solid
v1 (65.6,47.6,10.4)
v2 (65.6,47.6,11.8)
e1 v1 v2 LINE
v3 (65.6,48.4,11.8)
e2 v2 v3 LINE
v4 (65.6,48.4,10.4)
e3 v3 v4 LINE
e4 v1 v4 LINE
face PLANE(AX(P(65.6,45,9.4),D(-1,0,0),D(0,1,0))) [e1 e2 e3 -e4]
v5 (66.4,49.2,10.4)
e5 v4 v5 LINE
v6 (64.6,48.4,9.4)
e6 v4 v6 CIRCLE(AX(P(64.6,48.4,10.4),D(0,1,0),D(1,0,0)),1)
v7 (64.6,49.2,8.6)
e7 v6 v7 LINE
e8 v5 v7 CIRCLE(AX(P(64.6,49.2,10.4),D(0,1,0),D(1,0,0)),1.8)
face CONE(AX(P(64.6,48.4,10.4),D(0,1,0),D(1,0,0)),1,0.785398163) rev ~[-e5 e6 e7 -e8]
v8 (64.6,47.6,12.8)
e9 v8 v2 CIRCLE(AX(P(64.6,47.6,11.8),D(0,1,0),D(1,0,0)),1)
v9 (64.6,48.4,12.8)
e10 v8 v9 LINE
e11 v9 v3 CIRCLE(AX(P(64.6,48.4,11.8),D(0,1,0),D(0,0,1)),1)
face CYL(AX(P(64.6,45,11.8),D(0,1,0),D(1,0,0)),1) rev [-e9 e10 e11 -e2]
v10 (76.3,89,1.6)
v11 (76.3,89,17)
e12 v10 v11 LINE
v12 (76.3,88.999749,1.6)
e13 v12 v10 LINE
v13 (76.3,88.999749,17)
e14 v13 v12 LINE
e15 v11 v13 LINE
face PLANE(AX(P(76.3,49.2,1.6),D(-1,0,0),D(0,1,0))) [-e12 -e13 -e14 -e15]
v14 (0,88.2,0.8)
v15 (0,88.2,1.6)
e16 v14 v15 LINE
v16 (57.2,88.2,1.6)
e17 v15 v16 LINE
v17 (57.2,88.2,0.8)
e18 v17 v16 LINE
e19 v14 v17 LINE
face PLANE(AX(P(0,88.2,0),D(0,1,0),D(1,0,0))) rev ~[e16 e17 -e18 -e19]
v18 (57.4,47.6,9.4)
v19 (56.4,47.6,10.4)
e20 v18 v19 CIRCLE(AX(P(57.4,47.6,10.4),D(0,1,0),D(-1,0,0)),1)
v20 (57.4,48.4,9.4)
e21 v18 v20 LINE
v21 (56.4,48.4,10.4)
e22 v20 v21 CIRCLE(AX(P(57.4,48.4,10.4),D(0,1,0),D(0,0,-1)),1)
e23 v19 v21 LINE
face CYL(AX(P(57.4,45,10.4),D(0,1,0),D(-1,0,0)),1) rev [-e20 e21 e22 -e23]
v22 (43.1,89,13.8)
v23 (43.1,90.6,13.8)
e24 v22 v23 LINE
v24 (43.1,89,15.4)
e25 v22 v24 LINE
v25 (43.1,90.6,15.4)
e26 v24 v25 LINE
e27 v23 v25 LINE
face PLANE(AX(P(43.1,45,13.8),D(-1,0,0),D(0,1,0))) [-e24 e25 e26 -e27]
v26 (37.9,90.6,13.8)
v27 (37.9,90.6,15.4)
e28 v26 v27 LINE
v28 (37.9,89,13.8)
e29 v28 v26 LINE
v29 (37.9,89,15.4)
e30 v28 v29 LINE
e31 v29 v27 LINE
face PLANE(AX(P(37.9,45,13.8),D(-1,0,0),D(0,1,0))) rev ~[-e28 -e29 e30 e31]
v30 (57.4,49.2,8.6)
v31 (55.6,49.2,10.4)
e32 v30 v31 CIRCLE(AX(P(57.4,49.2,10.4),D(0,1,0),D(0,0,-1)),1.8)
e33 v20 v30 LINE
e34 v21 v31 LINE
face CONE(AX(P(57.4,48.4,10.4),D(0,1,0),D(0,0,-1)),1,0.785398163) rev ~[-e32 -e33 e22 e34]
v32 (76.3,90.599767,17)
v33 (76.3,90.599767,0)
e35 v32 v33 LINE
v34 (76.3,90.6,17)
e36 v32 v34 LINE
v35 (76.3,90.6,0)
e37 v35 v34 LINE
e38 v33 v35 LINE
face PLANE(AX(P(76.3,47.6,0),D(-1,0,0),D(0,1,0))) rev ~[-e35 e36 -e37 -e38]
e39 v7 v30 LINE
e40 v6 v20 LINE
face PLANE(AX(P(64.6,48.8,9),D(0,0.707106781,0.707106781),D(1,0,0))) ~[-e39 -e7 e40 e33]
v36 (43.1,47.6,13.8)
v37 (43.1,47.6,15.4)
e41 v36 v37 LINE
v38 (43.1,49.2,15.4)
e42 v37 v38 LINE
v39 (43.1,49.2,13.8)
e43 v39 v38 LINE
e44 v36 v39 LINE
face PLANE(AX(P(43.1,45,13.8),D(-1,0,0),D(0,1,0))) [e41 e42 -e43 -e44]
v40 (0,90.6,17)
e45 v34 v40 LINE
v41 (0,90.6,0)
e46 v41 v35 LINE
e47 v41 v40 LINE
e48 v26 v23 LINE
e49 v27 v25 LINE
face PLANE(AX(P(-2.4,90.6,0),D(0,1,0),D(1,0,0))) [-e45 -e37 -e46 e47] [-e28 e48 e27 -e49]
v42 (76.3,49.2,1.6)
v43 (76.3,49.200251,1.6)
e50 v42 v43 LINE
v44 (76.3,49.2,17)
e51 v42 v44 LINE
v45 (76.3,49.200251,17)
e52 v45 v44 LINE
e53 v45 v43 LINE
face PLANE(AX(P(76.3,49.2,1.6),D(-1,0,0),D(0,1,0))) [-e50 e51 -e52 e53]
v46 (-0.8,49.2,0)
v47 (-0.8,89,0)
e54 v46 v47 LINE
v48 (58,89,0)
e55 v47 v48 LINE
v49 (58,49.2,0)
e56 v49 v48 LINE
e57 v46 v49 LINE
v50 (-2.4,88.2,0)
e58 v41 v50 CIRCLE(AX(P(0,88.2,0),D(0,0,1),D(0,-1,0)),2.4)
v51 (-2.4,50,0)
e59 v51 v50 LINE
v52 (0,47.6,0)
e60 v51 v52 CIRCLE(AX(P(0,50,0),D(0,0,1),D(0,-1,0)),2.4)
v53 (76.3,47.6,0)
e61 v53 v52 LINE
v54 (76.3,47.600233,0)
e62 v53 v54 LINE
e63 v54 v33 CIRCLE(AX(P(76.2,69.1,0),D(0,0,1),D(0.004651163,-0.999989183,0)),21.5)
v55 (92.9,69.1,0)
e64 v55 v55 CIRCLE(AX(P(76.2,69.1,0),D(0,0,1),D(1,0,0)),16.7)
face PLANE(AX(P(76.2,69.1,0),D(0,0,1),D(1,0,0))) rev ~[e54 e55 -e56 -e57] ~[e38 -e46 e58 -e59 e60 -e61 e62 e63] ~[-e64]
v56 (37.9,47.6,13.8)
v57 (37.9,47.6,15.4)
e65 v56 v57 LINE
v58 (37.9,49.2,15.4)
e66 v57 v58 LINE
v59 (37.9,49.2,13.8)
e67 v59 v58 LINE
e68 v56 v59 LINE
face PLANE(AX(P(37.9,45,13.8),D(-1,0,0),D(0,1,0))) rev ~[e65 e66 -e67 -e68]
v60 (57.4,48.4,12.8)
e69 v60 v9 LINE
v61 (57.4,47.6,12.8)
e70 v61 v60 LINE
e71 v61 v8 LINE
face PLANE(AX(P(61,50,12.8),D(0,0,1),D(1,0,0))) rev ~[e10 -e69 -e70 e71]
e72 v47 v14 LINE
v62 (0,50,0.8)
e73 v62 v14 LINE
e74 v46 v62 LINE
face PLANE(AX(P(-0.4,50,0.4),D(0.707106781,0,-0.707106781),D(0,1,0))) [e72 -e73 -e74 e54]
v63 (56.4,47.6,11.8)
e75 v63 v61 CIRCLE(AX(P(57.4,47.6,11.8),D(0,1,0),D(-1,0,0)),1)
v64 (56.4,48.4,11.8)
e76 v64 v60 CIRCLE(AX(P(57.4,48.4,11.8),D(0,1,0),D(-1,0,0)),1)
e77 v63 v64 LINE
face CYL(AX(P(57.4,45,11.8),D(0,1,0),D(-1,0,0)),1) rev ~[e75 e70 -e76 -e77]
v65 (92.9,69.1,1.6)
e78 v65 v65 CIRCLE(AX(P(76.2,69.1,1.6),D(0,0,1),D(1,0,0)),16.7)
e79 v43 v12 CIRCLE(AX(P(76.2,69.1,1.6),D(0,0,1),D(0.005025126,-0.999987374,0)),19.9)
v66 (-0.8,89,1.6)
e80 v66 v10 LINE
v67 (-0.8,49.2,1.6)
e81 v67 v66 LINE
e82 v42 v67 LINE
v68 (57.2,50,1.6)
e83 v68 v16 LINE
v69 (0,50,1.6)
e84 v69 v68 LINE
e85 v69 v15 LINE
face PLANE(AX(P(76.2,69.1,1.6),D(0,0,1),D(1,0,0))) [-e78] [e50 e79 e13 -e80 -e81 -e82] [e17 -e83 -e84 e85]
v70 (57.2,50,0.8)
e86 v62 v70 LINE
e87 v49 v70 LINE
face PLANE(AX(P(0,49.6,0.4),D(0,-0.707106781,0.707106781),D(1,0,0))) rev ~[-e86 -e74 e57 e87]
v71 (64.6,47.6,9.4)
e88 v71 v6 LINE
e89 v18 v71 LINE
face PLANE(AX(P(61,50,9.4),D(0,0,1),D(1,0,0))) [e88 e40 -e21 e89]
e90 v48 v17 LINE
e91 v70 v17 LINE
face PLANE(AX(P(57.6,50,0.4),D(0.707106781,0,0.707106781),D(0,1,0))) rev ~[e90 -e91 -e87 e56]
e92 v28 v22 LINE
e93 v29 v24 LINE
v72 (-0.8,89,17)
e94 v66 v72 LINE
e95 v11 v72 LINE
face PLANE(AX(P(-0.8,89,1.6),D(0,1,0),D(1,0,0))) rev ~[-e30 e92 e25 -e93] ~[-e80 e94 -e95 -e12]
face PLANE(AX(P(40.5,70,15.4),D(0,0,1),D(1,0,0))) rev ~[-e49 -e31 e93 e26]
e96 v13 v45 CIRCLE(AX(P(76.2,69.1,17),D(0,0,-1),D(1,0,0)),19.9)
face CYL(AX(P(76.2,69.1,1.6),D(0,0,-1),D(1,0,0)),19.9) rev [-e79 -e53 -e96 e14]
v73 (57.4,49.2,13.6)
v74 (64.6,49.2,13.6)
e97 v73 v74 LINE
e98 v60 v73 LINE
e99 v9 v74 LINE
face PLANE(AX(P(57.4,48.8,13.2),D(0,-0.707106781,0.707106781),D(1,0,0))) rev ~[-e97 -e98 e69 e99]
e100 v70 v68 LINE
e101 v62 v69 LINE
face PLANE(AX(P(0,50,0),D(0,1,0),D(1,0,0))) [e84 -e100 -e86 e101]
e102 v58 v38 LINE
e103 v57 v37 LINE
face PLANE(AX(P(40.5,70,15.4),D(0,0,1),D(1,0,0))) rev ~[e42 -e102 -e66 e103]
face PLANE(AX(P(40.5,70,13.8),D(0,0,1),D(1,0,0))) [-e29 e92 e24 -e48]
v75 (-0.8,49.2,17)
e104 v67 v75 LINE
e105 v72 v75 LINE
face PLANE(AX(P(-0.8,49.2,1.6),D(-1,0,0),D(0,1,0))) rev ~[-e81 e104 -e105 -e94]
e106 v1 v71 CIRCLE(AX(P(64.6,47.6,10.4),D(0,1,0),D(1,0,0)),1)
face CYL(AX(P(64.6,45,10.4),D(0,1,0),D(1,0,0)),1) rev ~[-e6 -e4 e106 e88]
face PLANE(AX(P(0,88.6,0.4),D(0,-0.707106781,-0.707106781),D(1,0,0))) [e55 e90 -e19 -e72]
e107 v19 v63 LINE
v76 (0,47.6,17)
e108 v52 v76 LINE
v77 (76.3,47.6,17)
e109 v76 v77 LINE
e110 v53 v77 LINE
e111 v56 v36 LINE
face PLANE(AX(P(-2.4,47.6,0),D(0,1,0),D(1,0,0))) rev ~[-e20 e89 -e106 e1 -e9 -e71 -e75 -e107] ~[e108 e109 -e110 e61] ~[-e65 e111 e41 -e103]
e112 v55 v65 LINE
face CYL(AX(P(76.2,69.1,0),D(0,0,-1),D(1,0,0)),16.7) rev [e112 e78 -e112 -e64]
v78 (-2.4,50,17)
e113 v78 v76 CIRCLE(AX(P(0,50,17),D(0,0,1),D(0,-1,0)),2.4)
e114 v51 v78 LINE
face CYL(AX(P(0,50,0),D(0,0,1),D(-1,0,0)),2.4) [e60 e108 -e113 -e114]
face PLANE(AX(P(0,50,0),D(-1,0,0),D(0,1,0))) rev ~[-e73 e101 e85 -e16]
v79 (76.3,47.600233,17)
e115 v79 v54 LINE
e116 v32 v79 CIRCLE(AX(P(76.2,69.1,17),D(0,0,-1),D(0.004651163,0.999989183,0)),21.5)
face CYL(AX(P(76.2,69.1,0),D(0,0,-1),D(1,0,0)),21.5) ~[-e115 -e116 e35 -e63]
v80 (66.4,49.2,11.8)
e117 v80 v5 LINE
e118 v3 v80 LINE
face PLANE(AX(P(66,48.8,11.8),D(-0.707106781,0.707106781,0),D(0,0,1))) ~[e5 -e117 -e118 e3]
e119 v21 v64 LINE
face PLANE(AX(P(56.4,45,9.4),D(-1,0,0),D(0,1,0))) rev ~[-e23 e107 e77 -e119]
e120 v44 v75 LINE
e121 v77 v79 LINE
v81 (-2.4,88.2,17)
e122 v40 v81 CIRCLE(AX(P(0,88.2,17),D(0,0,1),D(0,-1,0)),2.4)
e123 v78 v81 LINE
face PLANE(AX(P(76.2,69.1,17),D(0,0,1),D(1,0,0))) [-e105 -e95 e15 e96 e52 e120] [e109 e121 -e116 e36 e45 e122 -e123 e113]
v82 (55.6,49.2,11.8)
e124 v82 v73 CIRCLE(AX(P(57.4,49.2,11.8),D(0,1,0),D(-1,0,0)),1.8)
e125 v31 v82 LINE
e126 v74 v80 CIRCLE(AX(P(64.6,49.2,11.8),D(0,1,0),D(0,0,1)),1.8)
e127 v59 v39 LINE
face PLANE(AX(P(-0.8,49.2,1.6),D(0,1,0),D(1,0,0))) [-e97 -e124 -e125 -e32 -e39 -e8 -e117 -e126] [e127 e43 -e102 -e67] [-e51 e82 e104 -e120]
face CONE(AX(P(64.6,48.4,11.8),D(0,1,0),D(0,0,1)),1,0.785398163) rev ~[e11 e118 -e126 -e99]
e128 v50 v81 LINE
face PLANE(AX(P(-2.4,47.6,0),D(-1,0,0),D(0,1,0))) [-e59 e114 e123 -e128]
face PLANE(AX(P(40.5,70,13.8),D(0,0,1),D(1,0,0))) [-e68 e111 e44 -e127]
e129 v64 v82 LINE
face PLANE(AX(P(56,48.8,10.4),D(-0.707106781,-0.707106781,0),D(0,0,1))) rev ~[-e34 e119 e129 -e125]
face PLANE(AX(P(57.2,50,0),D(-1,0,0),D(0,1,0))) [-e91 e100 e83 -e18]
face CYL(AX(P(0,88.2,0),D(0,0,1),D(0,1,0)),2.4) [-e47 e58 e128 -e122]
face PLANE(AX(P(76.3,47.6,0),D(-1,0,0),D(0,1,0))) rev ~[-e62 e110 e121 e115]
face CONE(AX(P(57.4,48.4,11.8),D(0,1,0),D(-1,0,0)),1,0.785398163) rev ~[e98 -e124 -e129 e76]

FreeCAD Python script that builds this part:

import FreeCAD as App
import Part
import Sketcher
Q = App.Units.Quantity


def edges_at(feature, points):
    """Names of the edges that pass closest to the given points."""
    edges = feature.Shape.Edges
    near = lambda p: min(range(len(edges)), key=lambda i: edges[i].distToShape(Part.Vertex(*p))[0])
    return sorted({f"Edge{near(p) + 1}" for p in points})

doc = App.newDocument("Part")
body = doc.addObject("PartDesign::Body", "Body")

# Sketch on XY plane
sketch1 = body.newObject("Sketcher::SketchObject", "Sketch")
sketch1.AttachmentSupport = (doc.getObject("XY_Plane"), [""])
sketch1.MapMode = "FlatFace"
sketch1.AttachmentOffset = App.Placement(App.Vector(0, 0, 9.4), App.Rotation())
sketch1.addGeometry(Part.LineSegment(App.Vector(56, 55, 0), App.Vector(56, 45, 0)), False)
sketch1.addGeometry(Part.LineSegment(App.Vector(56, 45, 0), App.Vector(66, 45, 0)), False)
sketch1.addGeometry(Part.LineSegment(App.Vector(66, 45, 0), App.Vector(66, 55, 0)), False)
sketch1.addGeometry(Part.LineSegment(App.Vector(66, 55, 0), App.Vector(56, 55, 0)), False)
sketch1.addConstraint(Sketcher.Constraint("Coincident", 0, 2, 1, 1))
sketch1.addConstraint(Sketcher.Constraint("Coincident", 1, 2, 2, 1))
sketch1.addConstraint(Sketcher.Constraint("Coincident", 2, 2, 3, 1))
sketch1.addConstraint(Sketcher.Constraint("Coincident", 3, 2, 0, 1))
sketch1.addConstraint(Sketcher.Constraint("Vertical", 0))
sketch1.addConstraint(Sketcher.Constraint("Horizontal", 1))
sketch1.addConstraint(Sketcher.Constraint("Vertical", 2))
sketch1.addConstraint(Sketcher.Constraint("Horizontal", 3))
sketch1.addConstraint(Sketcher.Constraint("DistanceY", 0, 2, 0, 1, Q("10 mm")))
sketch1.addConstraint(Sketcher.Constraint("DistanceX", 1, 1, 1, 2, Q("9.2 mm")))
sketch1.addConstraint(Sketcher.Constraint("DistanceY", -1, 1, 0, 2, Q("45 mm")))
sketch1.addConstraint(Sketcher.Constraint("DistanceX", -1, 1, 0, 2, Q("56.4 mm")))
pad1 = body.newObject("PartDesign::Pad", "Pad")
pad1.Profile = sketch1
pad1.Length = 3.4
doc.recompute()

fillet = body.newObject("PartDesign::Fillet", "Fillet")
fillet.Base = (pad1, edges_at(pad1, [
    (56.4, 50, 12.8),
    (56.4, 50, 9.4),
    (65.6, 50, 12.8),
    (65.6, 50, 9.4),
]))
fillet.Radius = 1
body2 = doc.addObject("PartDesign::Body", "Body001")

# Sketch on XY plane
sketch2 = body2.newObject("Sketcher::SketchObject", "Sketch001")
sketch2.AttachmentSupport = (doc.getObject("XY_Plane001"), [""])
sketch2.MapMode = "FlatFace"
sketch2.AttachmentOffset = App.Placement(App.Vector(0, 0, 13.8), App.Rotation())
sketch2.addGeometry(Part.LineSegment(App.Vector(38, 95, 0), App.Vector(38, 45, 0)), False)
sketch2.addGeometry(Part.LineSegment(App.Vector(38, 45, 0), App.Vector(43, 45, 0)), False)
sketch2.addGeometry(Part.LineSegment(App.Vector(43, 45, 0), App.Vector(43, 95, 0)), False)
sketch2.addGeometry(Part.LineSegment(App.Vector(43, 95, 0), App.Vector(38, 95, 0)), False)
sketch2.addConstraint(Sketcher.Constraint("Coincident", 0, 2, 1, 1))
sketch2.addConstraint(Sketcher.Constraint("Coincident", 1, 2, 2, 1))
sketch2.addConstraint(Sketcher.Constraint("Coincident", 2, 2, 3, 1))
sketch2.addConstraint(Sketcher.Constraint("Coincident", 3, 2, 0, 1))
sketch2.addConstraint(Sketcher.Constraint("Vertical", 0))
sketch2.addConstraint(Sketcher.Constraint("Horizontal", 1))
sketch2.addConstraint(Sketcher.Constraint("Vertical", 2))
sketch2.addConstraint(Sketcher.Constraint("Horizontal", 3))
sketch2.addConstraint(Sketcher.Constraint("DistanceY", 0, 2, 0, 1, Q("50 mm")))
sketch2.addConstraint(Sketcher.Constraint("DistanceX", 1, 1, 1, 2, Q("5.2 mm")))
sketch2.addConstraint(Sketcher.Constraint("DistanceY", -1, 1, 0, 2, Q("45 mm")))
sketch2.addConstraint(Sketcher.Constraint("DistanceX", -1, 1, 0, 2, Q("37.9 mm")))
pad2 = body2.newObject("PartDesign::Pad", "Pad001")
pad2.Profile = sketch2
pad2.Length = 1.6
body3 = doc.addObject("PartDesign::Body", "Body002")

# Sketch on XY plane
sketch3 = body3.newObject("Sketcher::SketchObject", "Sketch002")
sketch3.AttachmentSupport = (doc.getObject("XY_Plane002"), [""])
sketch3.MapMode = "FlatFace"
sketch3.addGeometry(Part.LineSegment(App.Vector(0, 88, 0), App.Vector(0, 50, 0)), False)
sketch3.addGeometry(Part.LineSegment(App.Vector(0, 50, 0), App.Vector(57, 50, 0)), False)
sketch3.addGeometry(Part.LineSegment(App.Vector(57, 50, 0), App.Vector(57, 88, 0)), False)
sketch3.addGeometry(Part.LineSegment(App.Vector(57, 88, 0), App.Vector(0, 88, 0)), False)
sketch3.addConstraint(Sketcher.Constraint("Coincident", 0, 2, 1, 1))
sketch3.addConstraint(Sketcher.Constraint("Coincident", 1, 2, 2, 1))
sketch3.addConstraint(Sketcher.Constraint("Coincident", 2, 2, 3, 1))
sketch3.addConstraint(Sketcher.Constraint("Coincident", 3, 2, 0, 1))
sketch3.addConstraint(Sketcher.Constraint("Vertical", 0))
sketch3.addConstraint(Sketcher.Constraint("Horizontal", 1))
sketch3.addConstraint(Sketcher.Constraint("Vertical", 2))
sketch3.addConstraint(Sketcher.Constraint("Horizontal", 3))
sketch3.addConstraint(Sketcher.Constraint("PointOnObject", 0, 2, -2))
sketch3.addConstraint(Sketcher.Constraint("DistanceX", 1, 1, 1, 2, Q("57.2 mm")))
sketch3.addConstraint(Sketcher.Constraint("DistanceY", 0, 2, 0, 1, Q("38.2 mm")))
sketch3.addConstraint(Sketcher.Constraint("DistanceY", -1, 1, 0, 2, Q("50 mm")))
pad3 = body3.newObject("PartDesign::Pad", "Pad002")
pad3.Profile = sketch3
pad3.Length = 1.6
body4 = doc.addObject("PartDesign::Body", "Body003")

# Sketch on XY plane
sketch4 = body4.newObject("Sketcher::SketchObject", "Sketch003")
sketch4.AttachmentSupport = (doc.getObject("XY_Plane003"), [""])
sketch4.MapMode = "FlatFace"
sketch4.addGeometry(Part.Circle(App.Vector(76, 69, 0), App.Vector(0, 0, 1), 17), False)
sketch4.addConstraint(Sketcher.Constraint("Diameter", 0, Q("33.4 mm")))
sketch4.addConstraint(Sketcher.Constraint("DistanceX", -1, 1, 0, 3, Q("76.2 mm")))
sketch4.addConstraint(Sketcher.Constraint("DistanceY", -1, 1, 0, 3, Q("69.1 mm")))
pad4 = body4.newObject("PartDesign::Pad", "Pad003")
pad4.Profile = sketch4
pad4.Length = 1.6
body5 = doc.addObject("PartDesign::Body", "Body004")

# Sketch on XY plane
sketch5 = body5.newObject("Sketcher::SketchObject", "Sketch004")
sketch5.AttachmentSupport = (doc.getObject("XY_Plane004"), [""])
sketch5.MapMode = "FlatFace"
sketch5.AttachmentOffset = App.Placement(App.Vector(0, 0, 1.6), App.Rotation())
sketch5.addGeometry(Part.Circle(App.Vector(76, 69, 0), App.Vector(0, 0, 1), 20), False)
sketch5.addConstraint(Sketcher.Constraint("Diameter", 0, Q("39.8 mm")))
sketch5.addConstraint(Sketcher.Constraint("DistanceX", -1, 1, 0, 3, Q("76.2 mm")))
sketch5.addConstraint(Sketcher.Constraint("DistanceY", -1, 1, 0, 3, Q("69.1 mm")))
pad5 = body5.newObject("PartDesign::Pad", "Pad004")
pad5.Profile = sketch5
pad5.Length = 17
body6 = doc.addObject("PartDesign::Body", "Body005")

# Sketch on XY plane
sketch6 = body6.newObject("Sketcher::SketchObject", "Sketch005")
sketch6.AttachmentSupport = (doc.getObject("XY_Plane005"), [""])
sketch6.MapMode = "FlatFace"
sketch6.AttachmentOffset = App.Placement(App.Vector(0, 0, 1.6), App.Rotation())
sketch6.addGeometry(Part.LineSegment(App.Vector(-1, 89, 0), App.Vector(-1, 49, 0)), False)
sketch6.addGeometry(Part.LineSegment(App.Vector(-1, 49, 0), App.Vector(76, 49, 0)), False)
sketch6.addGeometry(Part.LineSegment(App.Vector(76, 49, 0), App.Vector(76, 89, 0)), False)
sketch6.addGeometry(Part.LineSegment(App.Vector(76, 89, 0), App.Vector(-1, 89, 0)), False)
sketch6.addConstraint(Sketcher.Constraint("Coincident", 0, 2, 1, 1))
sketch6.addConstraint(Sketcher.Constraint("Coincident", 1, 2, 2, 1))
sketch6.addConstraint(Sketcher.Constraint("Coincident", 2, 2, 3, 1))
sketch6.addConstraint(Sketcher.Constraint("Coincident", 3, 2, 0, 1))
sketch6.addConstraint(Sketcher.Constraint("Vertical", 0))
sketch6.addConstraint(Sketcher.Constraint("Horizontal", 1))
sketch6.addConstraint(Sketcher.Constraint("Vertical", 2))
sketch6.addConstraint(Sketcher.Constraint("Horizontal", 3))
sketch6.addConstraint(Sketcher.Constraint("DistanceX", 1, 1, 1, 2, Q("77.1 mm")))
sketch6.addConstraint(Sketcher.Constraint("DistanceY", 0, 2, 0, 1, Q("39.8 mm")))
sketch6.addConstraint(Sketcher.Constraint("DistanceY", -1, 1, 2, 2, Q("89 mm")))
sketch6.addConstraint(Sketcher.Constraint("DistanceX", 0, 2, -1, 1, Q("0.8 mm")))
pad6 = body6.newObject("PartDesign::Pad", "Pad005")
pad6.Profile = sketch6
pad6.Length = 17
doc.recompute()

boolean = body6.newObject("PartDesign::Boolean", "Boolean")
boolean.Type = "Fuse"
boolean.addObjects([body5])
body7 = doc.addObject("PartDesign::Body", "Body006")

# Sketch on XY plane
sketch7 = body7.newObject("Sketcher::SketchObject", "Sketch006")
sketch7.AttachmentSupport = (doc.getObject("XY_Plane006"), [""])
sketch7.MapMode = "FlatFace"
sketch7.addGeometry(Part.Circle(App.Vector(76, 69, 0), App.Vector(0, 0, 1), 22), False)
sketch7.addConstraint(Sketcher.Constraint("Diameter", 0, Q("43 mm")))
sketch7.addConstraint(Sketcher.Constraint("DistanceX", -1, 1, 0, 3, Q("76.2 mm")))
sketch7.addConstraint(Sketcher.Constraint("DistanceY", -1, 1, 0, 3, Q("69.1 mm")))
pad7 = body7.newObject("PartDesign::Pad", "Pad006")
pad7.Profile = sketch7
pad7.Length = 17
body8 = doc.addObject("PartDesign::Body", "Body007")

# Sketch on XY plane
sketch8 = body8.newObject("Sketcher::SketchObject", "Sketch007")
sketch8.AttachmentSupport = (doc.getObject("XY_Plane007"), [""])
sketch8.MapMode = "FlatFace"
sketch8.addGeometry(Part.LineSegment(App.Vector(-2, 91, 0), App.Vector(-2, 48, 0)), False)
sketch8.addGeometry(Part.LineSegment(App.Vector(-2, 48, 0), App.Vector(76, 48, 0)), False)
sketch8.addGeometry(Part.LineSegment(App.Vector(76, 48, 0), App.Vector(76, 91, 0)), False)
sketch8.addGeometry(Part.LineSegment(App.Vector(76, 91, 0), App.Vector(-2, 91, 0)), False)
sketch8.addConstraint(Sketcher.Constraint("Coincident", 0, 2, 1, 1))
sketch8.addConstraint(Sketcher.Constraint("Coincident", 1, 2, 2, 1))
sketch8.addConstraint(Sketcher.Constraint("Coincident", 2, 2, 3, 1))
sketch8.addConstraint(Sketcher.Constraint("Coincident", 3, 2, 0, 1))
sketch8.addConstraint(Sketcher.Constraint("Vertical", 0))
sketch8.addConstraint(Sketcher.Constraint("Horizontal", 1))
sketch8.addConstraint(Sketcher.Constraint("Vertical", 2))
sketch8.addConstraint(Sketcher.Constraint("Horizontal", 3))
sketch8.addConstraint(Sketcher.Constraint("DistanceY", 0, 2, 0, 1, Q("43 mm")))
sketch8.addConstraint(Sketcher.Constraint("DistanceX", 1, 1, 1, 2, Q("78.7 mm")))
sketch8.addConstraint(Sketcher.Constraint("DistanceX", 0, 2, -1, 1, Q("2.4 mm")))
sketch8.addConstraint(Sketcher.Constraint("DistanceY", -1, 1, 0, 2, Q("47.6 mm")))
pad8 = body8.newObject("PartDesign::Pad", "Pad007")
pad8.Profile = sketch8
pad8.Length = 17
doc.recompute()

boolean2 = body8.newObject("PartDesign::Boolean", "Boolean001")
boolean2.Type = "Fuse"
boolean2.addObjects([body7])
doc.recompute()

boolean3 = body8.newObject("PartDesign::Boolean", "Boolean002")
boolean3.Type = "Cut"
boolean3.addObjects([body6])
doc.recompute()

fillet2 = body8.newObject("PartDesign::Fillet", "Fillet001")
fillet2.Base = (boolean3, edges_at(boolean3, [(-2.4, 47.6, 8.5), (-2.4, 90.6, 8.5)]))
fillet2.Radius = 2.4
doc.recompute()

boolean4 = body8.newObject("PartDesign::Boolean", "Boolean003")
boolean4.Type = "Cut"
boolean4.addObjects([body4])
doc.recompute()

boolean5 = body8.newObject("PartDesign::Boolean", "Boolean004")
boolean5.Type = "Cut"
boolean5.addObjects([body3])
doc.recompute()

chamfer = body8.newObject("PartDesign::Chamfer", "Chamfer")
chamfer.Base = (boolean5, edges_at(boolean5, [
    (57.2, 69.1, 0),
    (28.6, 88.2, 0),
    (0, 69.1, 0),
    (28.6, 50, 0),
    (57.2, 69.1, 0),
    (57.2, 69.1, 0),
]))
chamfer.Size = 0.8
doc.recompute()

boolean6 = body8.newObject("PartDesign::Boolean", "Boolean005")
boolean6.Type = "Cut"
boolean6.addObjects([body2])
doc.recompute()

boolean7 = body8.newObject("PartDesign::Boolean", "Boolean006")
boolean7.Type = "Cut"
boolean7.addObjects([body])
doc.recompute()

chamfer2 = body8.newObject("PartDesign::Chamfer", "Chamfer001")
chamfer2.Base = (boolean7, edges_at(boolean7, [
    (56.693, 49.2, 12.507),
    (61, 49.2, 12.8),
    (65.307, 49.2, 12.507),
    (65.6, 49.2, 11.1),
    (65.307, 49.2, 9.693),
    (61, 49.2, 9.4),
    (56.693, 49.2, 9.693),
    (56.4, 49.2, 11.1),
]))
chamfer2.Size = 0.8

doc.recompute()
